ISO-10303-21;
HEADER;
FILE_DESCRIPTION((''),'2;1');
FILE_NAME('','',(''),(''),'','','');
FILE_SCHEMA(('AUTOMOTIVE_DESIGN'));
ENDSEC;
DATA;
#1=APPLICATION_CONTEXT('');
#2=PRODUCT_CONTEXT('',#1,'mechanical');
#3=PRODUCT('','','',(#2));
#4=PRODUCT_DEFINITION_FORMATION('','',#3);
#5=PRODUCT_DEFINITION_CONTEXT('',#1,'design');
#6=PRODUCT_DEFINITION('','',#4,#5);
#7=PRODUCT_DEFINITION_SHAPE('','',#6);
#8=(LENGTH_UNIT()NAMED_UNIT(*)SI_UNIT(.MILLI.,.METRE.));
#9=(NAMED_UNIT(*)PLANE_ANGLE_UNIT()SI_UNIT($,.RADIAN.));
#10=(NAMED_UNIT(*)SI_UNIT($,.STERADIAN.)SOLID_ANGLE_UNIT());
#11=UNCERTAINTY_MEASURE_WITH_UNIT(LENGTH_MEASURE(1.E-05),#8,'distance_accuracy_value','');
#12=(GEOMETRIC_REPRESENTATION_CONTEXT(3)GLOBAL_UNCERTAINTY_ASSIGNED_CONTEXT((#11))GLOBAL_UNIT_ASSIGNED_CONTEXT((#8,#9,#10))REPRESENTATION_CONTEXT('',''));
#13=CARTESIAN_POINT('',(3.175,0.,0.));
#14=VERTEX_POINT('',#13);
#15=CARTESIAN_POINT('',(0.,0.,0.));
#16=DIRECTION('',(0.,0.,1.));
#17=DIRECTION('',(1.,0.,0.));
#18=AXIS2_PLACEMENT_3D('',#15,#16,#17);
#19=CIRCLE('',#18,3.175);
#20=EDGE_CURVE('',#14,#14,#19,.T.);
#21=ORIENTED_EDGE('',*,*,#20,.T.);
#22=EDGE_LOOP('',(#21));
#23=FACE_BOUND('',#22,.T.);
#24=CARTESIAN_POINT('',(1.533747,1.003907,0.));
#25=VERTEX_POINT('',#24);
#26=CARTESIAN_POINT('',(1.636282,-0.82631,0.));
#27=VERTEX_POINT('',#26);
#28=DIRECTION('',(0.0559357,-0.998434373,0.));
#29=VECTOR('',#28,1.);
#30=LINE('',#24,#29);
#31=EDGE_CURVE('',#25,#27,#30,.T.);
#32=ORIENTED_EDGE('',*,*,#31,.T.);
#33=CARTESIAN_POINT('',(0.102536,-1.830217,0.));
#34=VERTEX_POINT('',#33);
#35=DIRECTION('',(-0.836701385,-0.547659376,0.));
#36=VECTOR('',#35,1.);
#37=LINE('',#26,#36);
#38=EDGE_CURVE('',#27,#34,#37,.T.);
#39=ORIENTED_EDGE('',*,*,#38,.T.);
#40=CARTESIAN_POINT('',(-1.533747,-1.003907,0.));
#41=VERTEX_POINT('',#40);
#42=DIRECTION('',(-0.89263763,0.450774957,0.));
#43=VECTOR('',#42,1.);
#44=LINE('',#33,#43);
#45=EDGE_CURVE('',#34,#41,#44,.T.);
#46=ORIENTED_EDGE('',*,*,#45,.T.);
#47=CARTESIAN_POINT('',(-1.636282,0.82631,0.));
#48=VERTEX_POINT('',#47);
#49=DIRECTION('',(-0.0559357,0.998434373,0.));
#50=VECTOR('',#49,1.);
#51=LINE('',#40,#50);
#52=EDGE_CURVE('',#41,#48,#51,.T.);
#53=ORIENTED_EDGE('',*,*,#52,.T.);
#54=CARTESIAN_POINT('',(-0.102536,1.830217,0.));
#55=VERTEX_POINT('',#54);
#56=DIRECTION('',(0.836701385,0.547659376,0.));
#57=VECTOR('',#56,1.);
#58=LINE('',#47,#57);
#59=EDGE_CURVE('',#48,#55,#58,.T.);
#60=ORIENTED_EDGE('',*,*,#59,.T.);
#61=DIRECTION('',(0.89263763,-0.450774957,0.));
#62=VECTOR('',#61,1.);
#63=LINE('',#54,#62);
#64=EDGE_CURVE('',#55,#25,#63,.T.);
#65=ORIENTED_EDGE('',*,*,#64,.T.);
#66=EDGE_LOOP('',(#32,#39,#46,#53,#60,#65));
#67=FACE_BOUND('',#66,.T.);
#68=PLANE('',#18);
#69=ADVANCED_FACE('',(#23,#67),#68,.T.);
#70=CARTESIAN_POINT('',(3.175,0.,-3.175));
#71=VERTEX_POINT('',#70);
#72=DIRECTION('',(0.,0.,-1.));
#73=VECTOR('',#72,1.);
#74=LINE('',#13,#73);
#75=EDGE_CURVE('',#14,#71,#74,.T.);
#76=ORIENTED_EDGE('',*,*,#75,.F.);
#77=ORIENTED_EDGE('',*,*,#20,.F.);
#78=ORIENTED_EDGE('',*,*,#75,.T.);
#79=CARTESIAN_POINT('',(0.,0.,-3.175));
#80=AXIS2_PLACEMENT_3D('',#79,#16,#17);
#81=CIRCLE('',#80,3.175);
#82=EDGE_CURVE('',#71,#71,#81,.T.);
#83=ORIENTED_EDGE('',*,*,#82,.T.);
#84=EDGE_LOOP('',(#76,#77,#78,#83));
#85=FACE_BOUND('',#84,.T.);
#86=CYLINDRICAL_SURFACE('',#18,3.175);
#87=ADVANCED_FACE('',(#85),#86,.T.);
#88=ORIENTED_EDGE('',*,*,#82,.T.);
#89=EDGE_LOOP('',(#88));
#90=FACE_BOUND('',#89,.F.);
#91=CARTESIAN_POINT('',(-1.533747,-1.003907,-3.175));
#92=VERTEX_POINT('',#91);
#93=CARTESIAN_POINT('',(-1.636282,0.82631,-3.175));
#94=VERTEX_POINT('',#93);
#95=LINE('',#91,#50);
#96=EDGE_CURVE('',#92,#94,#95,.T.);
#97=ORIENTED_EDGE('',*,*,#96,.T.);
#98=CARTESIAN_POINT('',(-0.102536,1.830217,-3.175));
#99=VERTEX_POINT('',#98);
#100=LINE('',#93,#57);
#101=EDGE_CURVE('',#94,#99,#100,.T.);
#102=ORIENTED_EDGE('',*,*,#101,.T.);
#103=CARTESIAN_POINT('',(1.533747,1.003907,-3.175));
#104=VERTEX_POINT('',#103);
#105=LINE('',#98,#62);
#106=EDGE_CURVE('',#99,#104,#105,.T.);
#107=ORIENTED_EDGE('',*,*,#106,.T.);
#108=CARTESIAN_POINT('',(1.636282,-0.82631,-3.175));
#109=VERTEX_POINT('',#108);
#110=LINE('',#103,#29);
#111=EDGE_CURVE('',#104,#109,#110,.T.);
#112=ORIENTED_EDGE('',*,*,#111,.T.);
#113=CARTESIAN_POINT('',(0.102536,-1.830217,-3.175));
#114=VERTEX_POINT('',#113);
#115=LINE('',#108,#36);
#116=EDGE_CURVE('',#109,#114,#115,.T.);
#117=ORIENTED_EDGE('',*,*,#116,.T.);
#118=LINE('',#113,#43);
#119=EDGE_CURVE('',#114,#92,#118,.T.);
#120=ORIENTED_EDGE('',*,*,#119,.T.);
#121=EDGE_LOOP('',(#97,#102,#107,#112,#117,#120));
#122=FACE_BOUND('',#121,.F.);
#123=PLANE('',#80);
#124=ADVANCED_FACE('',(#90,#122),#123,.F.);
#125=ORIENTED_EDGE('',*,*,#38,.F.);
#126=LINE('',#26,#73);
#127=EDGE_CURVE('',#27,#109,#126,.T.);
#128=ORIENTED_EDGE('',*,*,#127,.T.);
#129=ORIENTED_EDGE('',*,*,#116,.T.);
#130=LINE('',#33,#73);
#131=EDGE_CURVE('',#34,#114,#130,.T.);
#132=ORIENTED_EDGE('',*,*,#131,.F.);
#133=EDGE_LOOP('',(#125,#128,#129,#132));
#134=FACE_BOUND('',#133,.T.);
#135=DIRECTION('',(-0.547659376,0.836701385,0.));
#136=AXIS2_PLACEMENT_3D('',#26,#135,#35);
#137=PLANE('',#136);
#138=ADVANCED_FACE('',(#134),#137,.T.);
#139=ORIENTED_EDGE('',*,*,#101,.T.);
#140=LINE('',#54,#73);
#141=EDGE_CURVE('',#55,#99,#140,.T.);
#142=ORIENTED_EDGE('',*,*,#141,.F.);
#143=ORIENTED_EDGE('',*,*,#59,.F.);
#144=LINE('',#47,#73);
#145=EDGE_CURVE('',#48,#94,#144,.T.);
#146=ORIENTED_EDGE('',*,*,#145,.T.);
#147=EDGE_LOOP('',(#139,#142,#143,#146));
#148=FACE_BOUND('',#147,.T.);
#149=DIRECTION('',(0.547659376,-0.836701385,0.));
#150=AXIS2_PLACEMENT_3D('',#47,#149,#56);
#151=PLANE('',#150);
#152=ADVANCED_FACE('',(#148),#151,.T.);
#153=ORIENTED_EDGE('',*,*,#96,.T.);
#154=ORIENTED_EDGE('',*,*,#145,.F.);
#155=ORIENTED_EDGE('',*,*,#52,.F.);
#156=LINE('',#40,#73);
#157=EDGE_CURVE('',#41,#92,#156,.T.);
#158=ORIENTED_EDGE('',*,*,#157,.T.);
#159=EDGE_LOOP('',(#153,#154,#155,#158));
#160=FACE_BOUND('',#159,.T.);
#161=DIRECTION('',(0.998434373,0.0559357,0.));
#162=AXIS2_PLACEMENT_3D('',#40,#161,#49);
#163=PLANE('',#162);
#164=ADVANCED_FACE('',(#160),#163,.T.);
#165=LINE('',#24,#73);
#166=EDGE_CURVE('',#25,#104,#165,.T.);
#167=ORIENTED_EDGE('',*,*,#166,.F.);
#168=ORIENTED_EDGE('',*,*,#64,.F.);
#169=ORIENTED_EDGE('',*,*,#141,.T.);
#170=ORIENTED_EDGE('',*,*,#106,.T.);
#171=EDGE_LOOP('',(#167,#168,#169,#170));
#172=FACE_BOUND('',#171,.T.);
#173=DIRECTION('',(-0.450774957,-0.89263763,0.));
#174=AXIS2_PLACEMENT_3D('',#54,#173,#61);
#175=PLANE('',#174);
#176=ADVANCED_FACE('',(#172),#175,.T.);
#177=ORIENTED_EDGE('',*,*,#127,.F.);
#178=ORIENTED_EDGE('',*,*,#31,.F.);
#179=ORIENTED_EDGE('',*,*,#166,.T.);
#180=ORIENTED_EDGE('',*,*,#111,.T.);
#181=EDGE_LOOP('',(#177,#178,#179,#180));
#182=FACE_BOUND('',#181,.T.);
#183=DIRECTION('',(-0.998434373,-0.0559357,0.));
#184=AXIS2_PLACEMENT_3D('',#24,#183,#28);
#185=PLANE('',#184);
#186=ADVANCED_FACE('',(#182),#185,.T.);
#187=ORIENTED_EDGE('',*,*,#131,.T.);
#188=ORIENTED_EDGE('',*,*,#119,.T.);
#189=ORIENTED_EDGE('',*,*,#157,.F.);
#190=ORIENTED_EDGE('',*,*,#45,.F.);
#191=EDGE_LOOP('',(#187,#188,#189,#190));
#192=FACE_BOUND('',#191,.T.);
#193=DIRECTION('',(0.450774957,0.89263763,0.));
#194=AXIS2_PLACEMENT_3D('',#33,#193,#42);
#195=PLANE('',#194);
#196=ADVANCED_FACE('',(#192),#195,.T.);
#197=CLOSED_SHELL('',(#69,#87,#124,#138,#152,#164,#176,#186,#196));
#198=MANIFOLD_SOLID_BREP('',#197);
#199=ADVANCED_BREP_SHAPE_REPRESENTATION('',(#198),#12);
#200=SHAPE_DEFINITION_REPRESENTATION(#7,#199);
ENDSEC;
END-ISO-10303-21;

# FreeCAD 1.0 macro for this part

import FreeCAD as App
import Part
import Sketcher
from FreeCAD import Vector
Q = App.Units.Quantity


def add_polygon(sketch, points):
    """Adds a closed chain of lines whose ends are joined by coincident constraints."""
    first, n = sketch.GeometryCount, len(points)
    for a, b in zip(points, points[1:] + points[:1]):
        sketch.addGeometry(Part.LineSegment(App.Vector(*a, 0), App.Vector(*b, 0)), False)
    for i in range(n):
        sketch.addConstraint(Sketcher.Constraint("Coincident", first + i, 2, first + (i + 1) % n, 1))

doc = App.newDocument("Part")
body = doc.addObject("PartDesign::Body", "Body")

sketch1 = body.newObject("Sketcher::SketchObject", "Sketch")
sketch1.AttachmentSupport = (doc.getObject("XY_Plane"), [""])
sketch1.MapMode = "FlatFace"
sketch1.addGeometry(Part.Circle(Vector(0, 0, 0), Vector(0, 0, 1), 3.2), False)
add_polygon(sketch1, [(0.1, -1.8), (-1.5, -1), (-1.6, 0.8), (-0.1, 1.8), (1.5, 1), (1.6, -0.8)])
sketch1.addConstraint([
    Sketcher.Constraint("Coincident", 0, 3, -1, 1),
    Sketcher.Constraint("Symmetric", 1, 2, 4, 2, -1, 1),
    Sketcher.Constraint("Symmetric", 2, 2, 5, 2, -1, 1),
    Sketcher.Constraint("Symmetric", 3, 2, 6, 2, -1, 1),
    Sketcher.Constraint("Equal", 1, 2),
    Sketcher.Constraint("Equal", 2, 3),
    Sketcher.Constraint("Diameter", 0, Q("0.25 in")),
    Sketcher.Constraint("DistanceY", -1, 1, 2, 2, Q("0.82631 mm")),
    Sketcher.Constraint("DistanceX", 1, 2, 3, 2, Q("1.431211 mm")),
    Sketcher.Constraint("DistanceY", 4, 2, 3, 2, Q("0.82631 mm")),
    Sketcher.Constraint("DistanceX", 2, 2, 4, 2, Q("3.170029 mm")),
])
pad1 = body.newObject("PartDesign::Pad", "Pad")
pad1.Profile = sketch1
pad1.Length = Q("0.125 in")
pad1.Reversed = True

doc.recompute()
